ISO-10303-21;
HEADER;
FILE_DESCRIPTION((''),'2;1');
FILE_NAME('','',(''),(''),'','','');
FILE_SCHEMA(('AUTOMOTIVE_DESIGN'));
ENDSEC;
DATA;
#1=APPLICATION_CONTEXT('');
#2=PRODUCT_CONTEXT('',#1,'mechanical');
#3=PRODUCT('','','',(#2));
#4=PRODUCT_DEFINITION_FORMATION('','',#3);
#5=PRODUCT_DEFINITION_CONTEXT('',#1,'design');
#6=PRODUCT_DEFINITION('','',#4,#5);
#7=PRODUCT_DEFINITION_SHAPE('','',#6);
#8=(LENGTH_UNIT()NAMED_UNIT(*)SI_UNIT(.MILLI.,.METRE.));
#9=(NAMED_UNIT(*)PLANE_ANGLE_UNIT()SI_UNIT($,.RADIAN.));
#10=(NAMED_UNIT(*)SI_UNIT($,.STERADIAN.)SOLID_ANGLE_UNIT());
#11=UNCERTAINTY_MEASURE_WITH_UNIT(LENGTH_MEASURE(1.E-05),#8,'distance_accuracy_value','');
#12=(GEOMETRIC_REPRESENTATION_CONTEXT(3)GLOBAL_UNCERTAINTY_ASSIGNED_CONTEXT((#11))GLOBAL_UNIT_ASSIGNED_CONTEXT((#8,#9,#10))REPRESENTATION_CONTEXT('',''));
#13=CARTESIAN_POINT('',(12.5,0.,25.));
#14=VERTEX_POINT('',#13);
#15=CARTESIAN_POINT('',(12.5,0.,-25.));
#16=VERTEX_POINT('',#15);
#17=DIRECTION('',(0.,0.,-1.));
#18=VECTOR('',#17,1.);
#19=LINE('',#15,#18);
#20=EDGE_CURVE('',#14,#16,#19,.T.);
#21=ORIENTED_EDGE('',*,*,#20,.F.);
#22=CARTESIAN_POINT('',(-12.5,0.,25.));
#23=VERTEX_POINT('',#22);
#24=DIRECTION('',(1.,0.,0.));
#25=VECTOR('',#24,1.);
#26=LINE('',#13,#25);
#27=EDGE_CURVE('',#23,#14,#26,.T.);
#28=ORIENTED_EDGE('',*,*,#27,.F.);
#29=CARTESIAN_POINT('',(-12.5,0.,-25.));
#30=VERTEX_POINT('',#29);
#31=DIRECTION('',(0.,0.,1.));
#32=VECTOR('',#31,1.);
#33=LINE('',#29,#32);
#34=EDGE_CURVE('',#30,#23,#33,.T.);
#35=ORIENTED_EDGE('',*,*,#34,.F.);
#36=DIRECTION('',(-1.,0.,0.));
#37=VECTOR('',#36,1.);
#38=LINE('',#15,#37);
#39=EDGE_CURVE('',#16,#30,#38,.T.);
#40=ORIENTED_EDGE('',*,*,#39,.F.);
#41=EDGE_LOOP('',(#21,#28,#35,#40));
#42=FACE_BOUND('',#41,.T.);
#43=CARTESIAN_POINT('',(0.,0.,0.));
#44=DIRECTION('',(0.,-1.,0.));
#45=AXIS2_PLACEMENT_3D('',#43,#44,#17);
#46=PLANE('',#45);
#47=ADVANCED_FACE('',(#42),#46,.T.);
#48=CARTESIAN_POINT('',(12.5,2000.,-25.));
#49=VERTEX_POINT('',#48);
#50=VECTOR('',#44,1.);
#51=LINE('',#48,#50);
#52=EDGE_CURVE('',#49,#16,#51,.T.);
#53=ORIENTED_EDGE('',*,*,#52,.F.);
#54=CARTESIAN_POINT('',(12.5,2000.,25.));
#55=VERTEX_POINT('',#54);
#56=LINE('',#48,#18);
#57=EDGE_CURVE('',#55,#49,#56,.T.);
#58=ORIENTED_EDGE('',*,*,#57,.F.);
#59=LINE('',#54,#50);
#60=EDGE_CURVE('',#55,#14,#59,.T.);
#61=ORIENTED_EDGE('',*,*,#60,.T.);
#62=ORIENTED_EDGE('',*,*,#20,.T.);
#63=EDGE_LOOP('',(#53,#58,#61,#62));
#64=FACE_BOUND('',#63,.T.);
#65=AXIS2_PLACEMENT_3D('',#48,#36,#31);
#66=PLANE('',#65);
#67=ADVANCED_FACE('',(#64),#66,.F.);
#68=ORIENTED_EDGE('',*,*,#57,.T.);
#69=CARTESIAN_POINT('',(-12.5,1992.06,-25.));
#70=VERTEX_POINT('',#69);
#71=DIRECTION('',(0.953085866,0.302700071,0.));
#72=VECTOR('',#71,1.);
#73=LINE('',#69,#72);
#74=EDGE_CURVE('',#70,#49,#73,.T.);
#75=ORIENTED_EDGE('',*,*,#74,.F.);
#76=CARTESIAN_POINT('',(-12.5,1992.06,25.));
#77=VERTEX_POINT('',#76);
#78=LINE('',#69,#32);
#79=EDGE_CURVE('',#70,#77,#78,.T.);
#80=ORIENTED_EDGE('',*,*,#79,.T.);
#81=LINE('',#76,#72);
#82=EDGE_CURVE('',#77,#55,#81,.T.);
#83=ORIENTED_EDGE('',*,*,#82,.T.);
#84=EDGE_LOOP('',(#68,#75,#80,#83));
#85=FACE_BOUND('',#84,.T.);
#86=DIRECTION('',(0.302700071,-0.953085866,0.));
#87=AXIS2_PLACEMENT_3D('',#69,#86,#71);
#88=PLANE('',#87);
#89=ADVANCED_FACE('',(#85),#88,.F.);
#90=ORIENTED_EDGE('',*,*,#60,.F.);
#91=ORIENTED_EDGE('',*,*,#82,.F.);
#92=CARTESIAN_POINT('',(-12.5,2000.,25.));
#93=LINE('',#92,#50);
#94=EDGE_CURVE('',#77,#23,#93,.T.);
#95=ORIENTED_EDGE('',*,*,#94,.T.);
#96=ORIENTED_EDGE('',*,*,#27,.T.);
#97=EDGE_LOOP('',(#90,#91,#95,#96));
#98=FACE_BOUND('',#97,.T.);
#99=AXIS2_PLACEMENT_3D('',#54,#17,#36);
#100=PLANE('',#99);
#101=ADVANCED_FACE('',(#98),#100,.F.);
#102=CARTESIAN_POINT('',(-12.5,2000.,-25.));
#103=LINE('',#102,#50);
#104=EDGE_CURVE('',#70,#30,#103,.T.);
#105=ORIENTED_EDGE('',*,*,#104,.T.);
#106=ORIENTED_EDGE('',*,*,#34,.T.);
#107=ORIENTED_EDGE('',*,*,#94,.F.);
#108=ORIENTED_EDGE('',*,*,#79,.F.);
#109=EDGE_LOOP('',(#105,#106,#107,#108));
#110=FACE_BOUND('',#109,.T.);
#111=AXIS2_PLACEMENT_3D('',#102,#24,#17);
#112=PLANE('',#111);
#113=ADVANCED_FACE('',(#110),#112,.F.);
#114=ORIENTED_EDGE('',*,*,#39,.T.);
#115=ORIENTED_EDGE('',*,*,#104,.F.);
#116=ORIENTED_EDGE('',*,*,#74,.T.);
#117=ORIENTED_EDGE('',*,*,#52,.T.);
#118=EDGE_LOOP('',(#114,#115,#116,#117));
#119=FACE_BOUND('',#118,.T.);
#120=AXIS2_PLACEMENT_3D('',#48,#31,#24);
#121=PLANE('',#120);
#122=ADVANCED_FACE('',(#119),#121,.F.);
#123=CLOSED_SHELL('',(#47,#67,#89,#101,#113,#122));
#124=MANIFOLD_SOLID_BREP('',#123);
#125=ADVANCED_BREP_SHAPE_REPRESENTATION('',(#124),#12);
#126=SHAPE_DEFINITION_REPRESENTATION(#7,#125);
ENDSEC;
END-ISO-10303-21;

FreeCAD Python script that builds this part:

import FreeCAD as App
import Part
import Sketcher
Q = App.Units.Quantity


def add_polygon(sketch, points):
    """Adds a closed chain of lines whose ends are joined by coincident constraints."""
    first, n = sketch.GeometryCount, len(points)
    for a, b in zip(points, points[1:] + points[:1]):
        sketch.addGeometry(Part.LineSegment(App.Vector(*a, 0), App.Vector(*b, 0)), False)
    for i in range(n):
        sketch.addConstraint(Sketcher.Constraint("Coincident", first + i, 2, first + (i + 1) % n, 1))

doc = App.newDocument("Part")
body = doc.addObject("PartDesign::Body", "Body")

# Sketch on XZ plane
sketch1 = body.newObject("Sketcher::SketchObject", "Sketch")
sketch1.AttachmentSupport = (doc.getObject("XZ_Plane"), [""])
sketch1.MapMode = "FlatFace"
add_polygon(sketch1, [(-12, -25), (-12, 25), (12, 25), (12, -25)])  # lines 0-3
sketch1.addConstraint(Sketcher.Constraint("Vertical", 0))
sketch1.addConstraint(Sketcher.Constraint("Horizontal", 1))
sketch1.addConstraint(Sketcher.Constraint("Vertical", 2))
sketch1.addConstraint(Sketcher.Constraint("Horizontal", 3))
sketch1.addConstraint(Sketcher.Constraint("Symmetric", 0, 2, 2, 2, -1, 1))
sketch1.addConstraint(Sketcher.Constraint("DistanceX", 1, 1, 1, 2, Q("25 mm")))
sketch1.addConstraint(Sketcher.Constraint("DistanceY", 0, 1, 0, 2, Q("50 mm")))
pad1 = body.newObject("PartDesign::Pad", "Pad")
pad1.Profile = sketch1
pad1.Length = 2000
pad1.Reversed = True

# Sketch on XY plane
sketch2 = body.newObject("Sketcher::SketchObject", "Sketch001")
sketch2.AttachmentSupport = (doc.getObject("XY_Plane"), [""])
sketch2.MapMode = "FlatFace"
sketch2.AttachmentOffset = App.Placement(App.Vector(0, 0, 25), App.Rotation())
add_polygon(sketch2, [(-12, 2000), (-12, 1992), (12, 2000)])  # lines 0-2
sketch2.addConstraint(Sketcher.Constraint("Vertical", 0))
sketch2.addConstraint(Sketcher.Constraint("Horizontal", 2))
sketch2.addConstraint(Sketcher.Constraint("DistanceX", 2, 2, 2, 1, Q("25 mm")))
sketch2.addConstraint(Sketcher.Constraint("DistanceY", -1, 1, 1, 2, Q("2000 mm")))
sketch2.addConstraint(Sketcher.Constraint("DistanceY", 0, 2, 0, 1, Q("7.94 mm")))
sketch2.addConstraint(Sketcher.Constraint("DistanceX", 0, 2, -1, 1, Q("12.5 mm")))
pocket1 = body.newObject("PartDesign::Pocket", "Pocket")
pocket1.Profile = sketch2
pocket1.Length = 50

doc.recompute()
